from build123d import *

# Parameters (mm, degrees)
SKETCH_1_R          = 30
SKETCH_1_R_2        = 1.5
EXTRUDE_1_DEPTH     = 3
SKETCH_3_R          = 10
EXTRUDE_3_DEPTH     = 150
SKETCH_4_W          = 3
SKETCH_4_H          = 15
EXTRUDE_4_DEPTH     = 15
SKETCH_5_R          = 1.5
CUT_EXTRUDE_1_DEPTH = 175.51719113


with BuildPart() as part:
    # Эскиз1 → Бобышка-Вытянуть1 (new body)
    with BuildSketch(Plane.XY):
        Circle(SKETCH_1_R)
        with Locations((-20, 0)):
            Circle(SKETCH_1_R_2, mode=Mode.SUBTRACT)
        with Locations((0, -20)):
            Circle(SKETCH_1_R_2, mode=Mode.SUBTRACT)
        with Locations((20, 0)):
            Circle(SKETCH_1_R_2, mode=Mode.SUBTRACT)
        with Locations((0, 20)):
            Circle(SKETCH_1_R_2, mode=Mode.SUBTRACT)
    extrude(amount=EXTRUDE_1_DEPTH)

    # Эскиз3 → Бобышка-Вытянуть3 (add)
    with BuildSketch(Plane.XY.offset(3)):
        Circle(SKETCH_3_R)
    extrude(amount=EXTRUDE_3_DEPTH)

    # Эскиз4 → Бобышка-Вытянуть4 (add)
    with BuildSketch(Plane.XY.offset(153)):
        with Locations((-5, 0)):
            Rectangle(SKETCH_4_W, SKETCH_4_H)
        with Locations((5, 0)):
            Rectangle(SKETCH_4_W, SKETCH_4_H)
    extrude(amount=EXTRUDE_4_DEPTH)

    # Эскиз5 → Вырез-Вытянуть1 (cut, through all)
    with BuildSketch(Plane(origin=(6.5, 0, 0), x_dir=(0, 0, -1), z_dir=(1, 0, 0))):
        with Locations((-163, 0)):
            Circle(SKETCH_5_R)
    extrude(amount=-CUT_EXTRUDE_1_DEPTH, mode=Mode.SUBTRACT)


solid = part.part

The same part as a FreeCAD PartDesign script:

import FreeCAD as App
import Part
import Sketcher


def add_polygon(sketch, points):
    """Adds a closed chain of lines whose ends are joined by coincident constraints."""
    first, n = sketch.GeometryCount, len(points)
    for a, b in zip(points, points[1:] + points[:1]):
        sketch.addGeometry(Part.LineSegment(App.Vector(*a, 0), App.Vector(*b, 0)), False)
    for i in range(n):
        sketch.addConstraint(Sketcher.Constraint("Coincident", first + i, 2, first + (i + 1) % n, 1))

doc = App.newDocument("Part")
params = doc.addObject("Spreadsheet::Sheet", "Params")
for row, (alias, value) in enumerate([
    ("sketch1_diameter", "60 mm"),
    ("sketch1_diameter2", "3 mm"),
    ("pad1_length", "3 mm"),
    ("sketch2_diameter", "20 mm"),
    ("pad2_length", "150 mm"),
    ("sketch3_width", "3 mm"),
    ("sketch3_height", "15 mm"),
    ("pad3_length", "15 mm"),
    ("sketch4_diameter", "3 mm"),
], start=1):
    params.set(f"A{row}", alias)
    params.set(f"B{row}", "=" + value)
    params.setAlias(f"B{row}", alias)

body = doc.addObject("PartDesign::Body", "Body")

# Sketch on XY plane
sketch1 = body.newObject("Sketcher::SketchObject", "Sketch")
sketch1.AttachmentSupport = (doc.getObject("XY_Plane"), [""])
sketch1.MapMode = "FlatFace"
sketch1.addGeometry(Part.Circle(App.Vector(0, 0, 0), App.Vector(0, 0, 1), 30), False)
sketch1.addGeometry(Part.Circle(App.Vector(0, -20, 0), App.Vector(0, 0, 1), 1.5), False)
sketch1.addGeometry(Part.Circle(App.Vector(-20, 0, 0), App.Vector(0, 0, 1), 1.5), False)
sketch1.addGeometry(Part.Circle(App.Vector(20, 0, 0), App.Vector(0, 0, 1), 1.5), False)
sketch1.addGeometry(Part.Circle(App.Vector(0, 20, 0), App.Vector(0, 0, 1), 1.5), False)
sketch1.addConstraint(Sketcher.Constraint("Coincident", 0, 3, -1, 1))
sketch1.addConstraint(Sketcher.Constraint("Equal", 1, 2))
sketch1.addConstraint(Sketcher.Constraint("Equal", 2, 3))
sketch1.addConstraint(Sketcher.Constraint("Equal", 3, 4))
sketch1.addConstraint(Sketcher.Constraint("Symmetric", 2, 3, 3, 3, -1, 1))
sketch1.addConstraint(Sketcher.Constraint("Symmetric", 1, 3, 4, 3, -1, 1))
sketch1.addConstraint(Sketcher.Constraint("PointOnObject", 1, 3, -2))
sketch1.addConstraint(Sketcher.Constraint("PointOnObject", 2, 3, -1))
sketch1.addConstraint(Sketcher.Constraint("Diameter", 0, 60.0))
sketch1.addConstraint(Sketcher.Constraint("Diameter", 1, 3.0))
sketch1.addConstraint(Sketcher.Constraint("DistanceY", 1, 3, -1, 1, 20.0))
sketch1.addConstraint(Sketcher.Constraint("DistanceX", 2, 3, -1, 1, 20.0))
sketch1.setExpression("Constraints[8]", "Params.sketch1_diameter")
sketch1.setExpression("Constraints[9]", "Params.sketch1_diameter2")
pad1 = body.newObject("PartDesign::Pad", "Pad")
pad1.Profile = sketch1
pad1.setExpression("Length", "Params.pad1_length")

# Sketch on XY plane
sketch2 = body.newObject("Sketcher::SketchObject", "Sketch001")
sketch2.AttachmentSupport = (doc.getObject("XY_Plane"), [""])
sketch2.MapMode = "FlatFace"
sketch2.AttachmentOffset = App.Placement(App.Vector(0, 0, 3), App.Rotation())
sketch2.addGeometry(Part.Circle(App.Vector(0, 0, 0), App.Vector(0, 0, 1), 10), False)
sketch2.addConstraint(Sketcher.Constraint("Coincident", 0, 3, -1, 1))
sketch2.addConstraint(Sketcher.Constraint("Diameter", 0, 20.0))
sketch2.setExpression("Constraints[1]", "Params.sketch2_diameter")
pad2 = body.newObject("PartDesign::Pad", "Pad001")
pad2.Profile = sketch2
pad2.setExpression("Length", "Params.pad2_length")

# Sketch on XY plane
sketch3 = body.newObject("Sketcher::SketchObject", "Sketch002")
sketch3.AttachmentSupport = (doc.getObject("XY_Plane"), [""])
sketch3.MapMode = "FlatFace"
sketch3.AttachmentOffset = App.Placement(App.Vector(0, 0, 153), App.Rotation())
add_polygon(sketch3, [(-6.5, 7.5), (-6.5, -7.5), (-3.5, -7.5), (-3.5, 7.5)])  # lines 0-3
add_polygon(sketch3, [(3.5, 7.5), (3.5, -7.5), (6.5, -7.5), (6.5, 7.5)])  # lines 4-7
sketch3.addConstraint(Sketcher.Constraint("Vertical", 0))
sketch3.addConstraint(Sketcher.Constraint("Horizontal", 1))
sketch3.addConstraint(Sketcher.Constraint("Vertical", 2))
sketch3.addConstraint(Sketcher.Constraint("Horizontal", 3))
sketch3.addConstraint(Sketcher.Constraint("Vertical", 4))
sketch3.addConstraint(Sketcher.Constraint("Horizontal", 5))
sketch3.addConstraint(Sketcher.Constraint("Vertical", 6))
sketch3.addConstraint(Sketcher.Constraint("Horizontal", 7))
sketch3.addConstraint(Sketcher.Constraint("Symmetric", 2, 2, 4, 2, -1, 1))
sketch3.addConstraint(Sketcher.Constraint("Symmetric", 0, 2, 6, 2, -1, 1))
sketch3.addConstraint(Sketcher.Constraint("Horizontal", 1, 2, 4, 2))
sketch3.addConstraint(Sketcher.Constraint("DistanceX", 1, 1, 1, 2, 3.0))
sketch3.addConstraint(Sketcher.Constraint("DistanceY", 0, 2, 0, 1, 15.0))
sketch3.addConstraint(Sketcher.Constraint("DistanceX", 1, 2, 4, 2, 7.0))
sketch3.setExpression("Constraints[19]", "Params.sketch3_width")
sketch3.setExpression("Constraints[20]", "Params.sketch3_height")
pad3 = body.newObject("PartDesign::Pad", "Pad002")
pad3.Profile = sketch3
pad3.setExpression("Length", "Params.pad3_length")

# Sketch on YZ plane
sketch4 = body.newObject("Sketcher::SketchObject", "Sketch003")
sketch4.AttachmentSupport = (doc.getObject("YZ_Plane"), [""])
sketch4.MapMode = "FlatFace"
sketch4.AttachmentOffset = App.Placement(App.Vector(0, 0, 6.5), App.Rotation())
sketch4.addGeometry(Part.Circle(App.Vector(0, 163, 0), App.Vector(0, 0, 1), 1.5), False)
sketch4.addConstraint(Sketcher.Constraint("PointOnObject", 0, 3, -2))
sketch4.addConstraint(Sketcher.Constraint("Diameter", 0, 3.0))
sketch4.addConstraint(Sketcher.Constraint("DistanceY", -1, 1, 0, 3, 163.0))
sketch4.setExpression("Constraints[1]", "Params.sketch4_diameter")
pocket1 = body.newObject("PartDesign::Pocket", "Pocket")
pocket1.Profile = sketch4
pocket1.Type = "ThroughAll"

doc.recompute()
